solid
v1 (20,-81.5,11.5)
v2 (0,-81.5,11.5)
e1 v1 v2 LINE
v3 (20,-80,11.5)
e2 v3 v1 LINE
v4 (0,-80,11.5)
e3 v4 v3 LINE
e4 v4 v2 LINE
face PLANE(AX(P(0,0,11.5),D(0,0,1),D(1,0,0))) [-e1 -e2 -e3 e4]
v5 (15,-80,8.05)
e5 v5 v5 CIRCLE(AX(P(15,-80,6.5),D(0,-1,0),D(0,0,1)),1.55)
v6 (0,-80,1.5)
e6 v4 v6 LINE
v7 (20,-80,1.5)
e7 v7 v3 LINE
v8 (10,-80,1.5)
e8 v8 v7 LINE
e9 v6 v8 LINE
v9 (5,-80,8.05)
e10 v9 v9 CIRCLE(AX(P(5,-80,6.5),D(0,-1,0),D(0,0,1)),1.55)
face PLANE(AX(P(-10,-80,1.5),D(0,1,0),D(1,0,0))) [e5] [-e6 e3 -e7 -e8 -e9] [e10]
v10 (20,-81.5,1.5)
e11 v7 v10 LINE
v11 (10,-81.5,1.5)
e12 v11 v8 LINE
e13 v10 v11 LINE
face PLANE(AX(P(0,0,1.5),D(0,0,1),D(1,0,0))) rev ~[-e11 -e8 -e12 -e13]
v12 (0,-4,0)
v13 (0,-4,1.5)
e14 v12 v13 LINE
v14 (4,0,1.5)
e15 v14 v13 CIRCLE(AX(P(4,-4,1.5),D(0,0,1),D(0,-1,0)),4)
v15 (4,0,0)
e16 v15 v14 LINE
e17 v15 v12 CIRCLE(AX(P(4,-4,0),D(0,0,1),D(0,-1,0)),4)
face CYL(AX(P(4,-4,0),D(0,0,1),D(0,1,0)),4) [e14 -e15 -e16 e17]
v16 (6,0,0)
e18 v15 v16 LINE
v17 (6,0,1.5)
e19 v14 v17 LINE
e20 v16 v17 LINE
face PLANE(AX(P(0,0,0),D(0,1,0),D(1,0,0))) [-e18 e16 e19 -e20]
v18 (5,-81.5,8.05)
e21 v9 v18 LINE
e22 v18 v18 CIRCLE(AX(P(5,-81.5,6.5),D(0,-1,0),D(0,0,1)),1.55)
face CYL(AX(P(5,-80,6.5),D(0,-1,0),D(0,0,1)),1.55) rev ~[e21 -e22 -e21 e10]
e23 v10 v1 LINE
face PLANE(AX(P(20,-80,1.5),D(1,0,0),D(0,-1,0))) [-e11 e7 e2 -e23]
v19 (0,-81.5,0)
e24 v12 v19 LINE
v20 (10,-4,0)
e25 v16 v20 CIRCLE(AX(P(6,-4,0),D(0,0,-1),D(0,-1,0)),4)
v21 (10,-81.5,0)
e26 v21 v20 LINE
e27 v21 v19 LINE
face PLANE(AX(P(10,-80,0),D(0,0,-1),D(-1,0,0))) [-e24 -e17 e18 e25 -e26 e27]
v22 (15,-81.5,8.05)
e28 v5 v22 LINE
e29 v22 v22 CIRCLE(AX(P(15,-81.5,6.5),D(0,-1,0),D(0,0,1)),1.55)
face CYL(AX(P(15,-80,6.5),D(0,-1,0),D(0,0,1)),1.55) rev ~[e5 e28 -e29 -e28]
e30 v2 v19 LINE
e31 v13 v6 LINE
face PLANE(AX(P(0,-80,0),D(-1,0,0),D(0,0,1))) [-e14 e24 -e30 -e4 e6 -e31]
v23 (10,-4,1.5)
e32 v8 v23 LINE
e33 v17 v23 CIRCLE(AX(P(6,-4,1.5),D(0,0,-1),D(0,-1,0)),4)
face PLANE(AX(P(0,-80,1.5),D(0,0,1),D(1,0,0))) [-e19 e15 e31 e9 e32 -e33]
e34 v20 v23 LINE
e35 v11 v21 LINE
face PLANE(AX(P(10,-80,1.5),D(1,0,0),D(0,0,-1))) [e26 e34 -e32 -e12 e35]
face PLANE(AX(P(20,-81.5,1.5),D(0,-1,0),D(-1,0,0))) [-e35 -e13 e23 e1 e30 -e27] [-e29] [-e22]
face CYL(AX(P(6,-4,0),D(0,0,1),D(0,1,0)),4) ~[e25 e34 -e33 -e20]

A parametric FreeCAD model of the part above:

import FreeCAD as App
import Part
import Sketcher

V = App.Vector


def edges_at(feature, points):
    """Names of the edges that pass closest to the given points."""
    edges = feature.Shape.Edges
    near = lambda p: min(range(len(edges)), key=lambda i: edges[i].distToShape(Part.Vertex(*p))[0])
    return sorted({f"Edge{near(p) + 1}" for p in points})


def add_polygon(sketch, points):
    """Adds a closed chain of lines whose ends are joined by coincident constraints."""
    first, n = sketch.GeometryCount, len(points)
    for a, b in zip(points, points[1:] + points[:1]):
        sketch.addGeometry(Part.LineSegment(App.Vector(*a, 0), App.Vector(*b, 0)), False)
    for i in range(n):
        sketch.addConstraint(Sketcher.Constraint("Coincident", first + i, 2, first + (i + 1) % n, 1))

doc = App.newDocument("Part")
params = doc.addObject("Spreadsheet::Sheet", "Params")
for row, (alias, value) in enumerate([
    ("sketch1_width", "10 mm"),
    ("sketch1_height", "80 mm"),
    ("pad1_length", "1.5 mm"),
    ("fillet_radius", "4 mm"),
    ("sketch2_width", "10 mm"),
    ("sketch2_height", "1.5 mm"),
    ("pad2_length", "1.5 mm"),
    ("sketch3_width", "30 mm"),
    ("sketch3_height", "1.5 mm"),
    ("pad3_length", "10 mm"),
    ("sketch4_width", "10 mm"),
    ("pocket1_length", "10 mm"),
    ("sketch5_diameter", "3.1 mm"),
    ("hole_diameter", "3.1 mm"),
    ("hole_depth", "8 mm"),
], start=1):
    params.set(f"A{row}", alias)
    params.set(f"B{row}", "=" + value)
    params.setAlias(f"B{row}", alias)

body = doc.addObject("PartDesign::Body", "Body")

sketch1 = doc.addObject("Sketcher::SketchObject", "Sketch")
body.addObject(sketch1)
sketch1.AttachmentSupport = (doc.XY_Plane, [""])
sketch1.MapMode = "FlatFace"
add_polygon(sketch1, [(10, 0), (0, 0), (0, -80), (10, -80)])
sketch1.addConstraint(Sketcher.Constraint("Horizontal", 0))
sketch1.addConstraint(Sketcher.Constraint("Vertical", 1))
sketch1.addConstraint(Sketcher.Constraint("Horizontal", 2))
sketch1.addConstraint(Sketcher.Constraint("Vertical", 3))
sketch1.addConstraint(Sketcher.Constraint("Coincident", 0, 2, -1, 1))
sketch1.addConstraint(Sketcher.Constraint("DistanceX", 0, 2, 0, 1, 10.0))
sketch1.addConstraint(Sketcher.Constraint("DistanceY", 1, 2, 1, 1, 80.0))
sketch1.setExpression("Constraints[9]", "Params.sketch1_width")
sketch1.setExpression("Constraints[10]", "Params.sketch1_height")
pad1 = doc.addObject("PartDesign::Pad", "Pad")
body.addObject(pad1)
pad1.Profile = sketch1
pad1.setExpression("Length", "Params.pad1_length")
doc.recompute()

fillet = doc.addObject("PartDesign::Fillet", "Fillet")
body.addObject(fillet)
fillet.Base = (pad1, edges_at(pad1, [(10, 0, 0.75), (0, 0, 0.75)]))
fillet.setExpression("Radius", "Params.fillet_radius")

sketch2 = doc.addObject("Sketcher::SketchObject", "Sketch001")
body.addObject(sketch2)
sketch2.AttachmentSupport = (doc.XZ_Plane, [""])
sketch2.MapMode = "FlatFace"
sketch2.AttachmentOffset = App.Placement(V(0, 0, 80), App.Rotation())
add_polygon(sketch2, [(10, 1.5), (0, 1.5), (0, 0), (10, 0)])
sketch2.addConstraint(Sketcher.Constraint("Horizontal", 0))
sketch2.addConstraint(Sketcher.Constraint("Vertical", 1))
sketch2.addConstraint(Sketcher.Constraint("Horizontal", 2))
sketch2.addConstraint(Sketcher.Constraint("Vertical", 3))
sketch2.addConstraint(Sketcher.Constraint("Coincident", 1, 2, -1, 1))
sketch2.addConstraint(Sketcher.Constraint("DistanceX", 0, 2, 0, 1, 10.0))
sketch2.addConstraint(Sketcher.Constraint("DistanceY", 1, 2, 1, 1, 1.5))
sketch2.setExpression("Constraints[9]", "Params.sketch2_width")
sketch2.setExpression("Constraints[10]", "Params.sketch2_height")
pad2 = doc.addObject("PartDesign::Pad", "Pad001")
body.addObject(pad2)
pad2.Profile = sketch2
pad2.setExpression("Length", "Params.pad2_length")

sketch3 = doc.addObject("Sketcher::SketchObject", "Sketch002")
body.addObject(sketch3)
sketch3.AttachmentSupport = (doc.XY_Plane, [""])
sketch3.MapMode = "FlatFace"
sketch3.AttachmentOffset = App.Placement(V(0, 0, 1.5), App.Rotation())
add_polygon(sketch3, [(-10, -81.5), (20, -81.5), (20, -80), (-10, -80)])
sketch3.addConstraint(Sketcher.Constraint("Horizontal", 0))
sketch3.addConstraint(Sketcher.Constraint("Vertical", 1))
sketch3.addConstraint(Sketcher.Constraint("Horizontal", 2))
sketch3.addConstraint(Sketcher.Constraint("Vertical", 3))
sketch3.addConstraint(Sketcher.Constraint("DistanceX", 0, 1, 0, 2, 30.0))
sketch3.addConstraint(Sketcher.Constraint("DistanceY", 1, 1, 1, 2, 1.5))
sketch3.addConstraint(Sketcher.Constraint("DistanceX", -1, 1, 0, 2, 20.0))
sketch3.addConstraint(Sketcher.Constraint("DistanceY", 1, 2, -1, 1, 80.0))
sketch3.setExpression("Constraints[8]", "Params.sketch3_width")
sketch3.setExpression("Constraints[9]", "Params.sketch3_height")
pad3 = doc.addObject("PartDesign::Pad", "Pad002")
body.addObject(pad3)
pad3.Profile = sketch3
pad3.setExpression("Length", "Params.pad3_length")

sketch4 = doc.addObject("Sketcher::SketchObject", "Sketch003")
body.addObject(sketch4)
sketch4.AttachmentSupport = (doc.XZ_Plane, [""])
sketch4.MapMode = "FlatFace"
sketch4.AttachmentOffset = App.Placement(V(0, 0, 80), App.Rotation())
add_polygon(sketch4, [(-10, 2), (-10, 12), (0, 12), (0, 2)])
sketch4.addConstraint(Sketcher.Constraint("Vertical", 0))
sketch4.addConstraint(Sketcher.Constraint("Horizontal", 1))
sketch4.addConstraint(Sketcher.Constraint("Vertical", 2))
sketch4.addConstraint(Sketcher.Constraint("Horizontal", 3))
sketch4.addConstraint(Sketcher.Constraint("PointOnObject", 1, 2, -2))
sketch4.addConstraint(Sketcher.Constraint("Equal", 3, 0))
sketch4.addConstraint(Sketcher.Constraint("DistanceX", 1, 1, 1, 2, 10.0))
sketch4.addConstraint(Sketcher.Constraint("DistanceY", -1, 1, 0, 2, 11.5))
sketch4.setExpression("Constraints[10]", "Params.sketch4_width")
pocket1 = doc.addObject("PartDesign::Pocket", "Pocket")
body.addObject(pocket1)
pocket1.Profile = sketch4
pocket1.setExpression("Length", "Params.pocket1_length")
pocket1.Reversed = True

sketch5 = doc.addObject("Sketcher::SketchObject", "Sketch004")
body.addObject(sketch5)
sketch5.AttachmentSupport = (doc.XZ_Plane, [""])
sketch5.MapMode = "FlatFace"
sketch5.AttachmentOffset = App.Placement(V(0, 0, 80), App.Rotation())
sketch5.addGeometry(Part.Circle(V(5, 6.5, 0), V(0, 0, 1), 1.6), False)
sketch5.addGeometry(Part.Circle(V(15, 6.5, 0), V(0, 0, 1), 1.6), False)
sketch5.addConstraint(Sketcher.Constraint("Equal", 0, 1))
sketch5.addConstraint(Sketcher.Constraint("Horizontal", 0, 3, 1, 3))
sketch5.addConstraint(Sketcher.Constraint("Diameter", 0, 3.1))
sketch5.addConstraint(Sketcher.Constraint("DistanceX", -1, 1, 0, 3, 5.0))
sketch5.addConstraint(Sketcher.Constraint("DistanceX", -1, 1, 1, 3, 15.0))
sketch5.addConstraint(Sketcher.Constraint("DistanceY", -1, 1, 0, 3, 6.5))
sketch5.setExpression("Constraints[2]", "Params.sketch5_diameter")
doc.recompute()
hole = doc.addObject("PartDesign::Hole", "Hole")
body.addObject(hole)
hole.Profile = sketch5
hole.ThreadType = "None"
hole.setExpression("Diameter", "Params.hole_diameter")
hole.DepthType = "Dimension"
hole.setExpression("Depth", "Params.hole_depth")
hole.DrillPoint = "Angled"
hole.DrillPointAngle = 118
hole.Reversed = True

doc.recompute()
